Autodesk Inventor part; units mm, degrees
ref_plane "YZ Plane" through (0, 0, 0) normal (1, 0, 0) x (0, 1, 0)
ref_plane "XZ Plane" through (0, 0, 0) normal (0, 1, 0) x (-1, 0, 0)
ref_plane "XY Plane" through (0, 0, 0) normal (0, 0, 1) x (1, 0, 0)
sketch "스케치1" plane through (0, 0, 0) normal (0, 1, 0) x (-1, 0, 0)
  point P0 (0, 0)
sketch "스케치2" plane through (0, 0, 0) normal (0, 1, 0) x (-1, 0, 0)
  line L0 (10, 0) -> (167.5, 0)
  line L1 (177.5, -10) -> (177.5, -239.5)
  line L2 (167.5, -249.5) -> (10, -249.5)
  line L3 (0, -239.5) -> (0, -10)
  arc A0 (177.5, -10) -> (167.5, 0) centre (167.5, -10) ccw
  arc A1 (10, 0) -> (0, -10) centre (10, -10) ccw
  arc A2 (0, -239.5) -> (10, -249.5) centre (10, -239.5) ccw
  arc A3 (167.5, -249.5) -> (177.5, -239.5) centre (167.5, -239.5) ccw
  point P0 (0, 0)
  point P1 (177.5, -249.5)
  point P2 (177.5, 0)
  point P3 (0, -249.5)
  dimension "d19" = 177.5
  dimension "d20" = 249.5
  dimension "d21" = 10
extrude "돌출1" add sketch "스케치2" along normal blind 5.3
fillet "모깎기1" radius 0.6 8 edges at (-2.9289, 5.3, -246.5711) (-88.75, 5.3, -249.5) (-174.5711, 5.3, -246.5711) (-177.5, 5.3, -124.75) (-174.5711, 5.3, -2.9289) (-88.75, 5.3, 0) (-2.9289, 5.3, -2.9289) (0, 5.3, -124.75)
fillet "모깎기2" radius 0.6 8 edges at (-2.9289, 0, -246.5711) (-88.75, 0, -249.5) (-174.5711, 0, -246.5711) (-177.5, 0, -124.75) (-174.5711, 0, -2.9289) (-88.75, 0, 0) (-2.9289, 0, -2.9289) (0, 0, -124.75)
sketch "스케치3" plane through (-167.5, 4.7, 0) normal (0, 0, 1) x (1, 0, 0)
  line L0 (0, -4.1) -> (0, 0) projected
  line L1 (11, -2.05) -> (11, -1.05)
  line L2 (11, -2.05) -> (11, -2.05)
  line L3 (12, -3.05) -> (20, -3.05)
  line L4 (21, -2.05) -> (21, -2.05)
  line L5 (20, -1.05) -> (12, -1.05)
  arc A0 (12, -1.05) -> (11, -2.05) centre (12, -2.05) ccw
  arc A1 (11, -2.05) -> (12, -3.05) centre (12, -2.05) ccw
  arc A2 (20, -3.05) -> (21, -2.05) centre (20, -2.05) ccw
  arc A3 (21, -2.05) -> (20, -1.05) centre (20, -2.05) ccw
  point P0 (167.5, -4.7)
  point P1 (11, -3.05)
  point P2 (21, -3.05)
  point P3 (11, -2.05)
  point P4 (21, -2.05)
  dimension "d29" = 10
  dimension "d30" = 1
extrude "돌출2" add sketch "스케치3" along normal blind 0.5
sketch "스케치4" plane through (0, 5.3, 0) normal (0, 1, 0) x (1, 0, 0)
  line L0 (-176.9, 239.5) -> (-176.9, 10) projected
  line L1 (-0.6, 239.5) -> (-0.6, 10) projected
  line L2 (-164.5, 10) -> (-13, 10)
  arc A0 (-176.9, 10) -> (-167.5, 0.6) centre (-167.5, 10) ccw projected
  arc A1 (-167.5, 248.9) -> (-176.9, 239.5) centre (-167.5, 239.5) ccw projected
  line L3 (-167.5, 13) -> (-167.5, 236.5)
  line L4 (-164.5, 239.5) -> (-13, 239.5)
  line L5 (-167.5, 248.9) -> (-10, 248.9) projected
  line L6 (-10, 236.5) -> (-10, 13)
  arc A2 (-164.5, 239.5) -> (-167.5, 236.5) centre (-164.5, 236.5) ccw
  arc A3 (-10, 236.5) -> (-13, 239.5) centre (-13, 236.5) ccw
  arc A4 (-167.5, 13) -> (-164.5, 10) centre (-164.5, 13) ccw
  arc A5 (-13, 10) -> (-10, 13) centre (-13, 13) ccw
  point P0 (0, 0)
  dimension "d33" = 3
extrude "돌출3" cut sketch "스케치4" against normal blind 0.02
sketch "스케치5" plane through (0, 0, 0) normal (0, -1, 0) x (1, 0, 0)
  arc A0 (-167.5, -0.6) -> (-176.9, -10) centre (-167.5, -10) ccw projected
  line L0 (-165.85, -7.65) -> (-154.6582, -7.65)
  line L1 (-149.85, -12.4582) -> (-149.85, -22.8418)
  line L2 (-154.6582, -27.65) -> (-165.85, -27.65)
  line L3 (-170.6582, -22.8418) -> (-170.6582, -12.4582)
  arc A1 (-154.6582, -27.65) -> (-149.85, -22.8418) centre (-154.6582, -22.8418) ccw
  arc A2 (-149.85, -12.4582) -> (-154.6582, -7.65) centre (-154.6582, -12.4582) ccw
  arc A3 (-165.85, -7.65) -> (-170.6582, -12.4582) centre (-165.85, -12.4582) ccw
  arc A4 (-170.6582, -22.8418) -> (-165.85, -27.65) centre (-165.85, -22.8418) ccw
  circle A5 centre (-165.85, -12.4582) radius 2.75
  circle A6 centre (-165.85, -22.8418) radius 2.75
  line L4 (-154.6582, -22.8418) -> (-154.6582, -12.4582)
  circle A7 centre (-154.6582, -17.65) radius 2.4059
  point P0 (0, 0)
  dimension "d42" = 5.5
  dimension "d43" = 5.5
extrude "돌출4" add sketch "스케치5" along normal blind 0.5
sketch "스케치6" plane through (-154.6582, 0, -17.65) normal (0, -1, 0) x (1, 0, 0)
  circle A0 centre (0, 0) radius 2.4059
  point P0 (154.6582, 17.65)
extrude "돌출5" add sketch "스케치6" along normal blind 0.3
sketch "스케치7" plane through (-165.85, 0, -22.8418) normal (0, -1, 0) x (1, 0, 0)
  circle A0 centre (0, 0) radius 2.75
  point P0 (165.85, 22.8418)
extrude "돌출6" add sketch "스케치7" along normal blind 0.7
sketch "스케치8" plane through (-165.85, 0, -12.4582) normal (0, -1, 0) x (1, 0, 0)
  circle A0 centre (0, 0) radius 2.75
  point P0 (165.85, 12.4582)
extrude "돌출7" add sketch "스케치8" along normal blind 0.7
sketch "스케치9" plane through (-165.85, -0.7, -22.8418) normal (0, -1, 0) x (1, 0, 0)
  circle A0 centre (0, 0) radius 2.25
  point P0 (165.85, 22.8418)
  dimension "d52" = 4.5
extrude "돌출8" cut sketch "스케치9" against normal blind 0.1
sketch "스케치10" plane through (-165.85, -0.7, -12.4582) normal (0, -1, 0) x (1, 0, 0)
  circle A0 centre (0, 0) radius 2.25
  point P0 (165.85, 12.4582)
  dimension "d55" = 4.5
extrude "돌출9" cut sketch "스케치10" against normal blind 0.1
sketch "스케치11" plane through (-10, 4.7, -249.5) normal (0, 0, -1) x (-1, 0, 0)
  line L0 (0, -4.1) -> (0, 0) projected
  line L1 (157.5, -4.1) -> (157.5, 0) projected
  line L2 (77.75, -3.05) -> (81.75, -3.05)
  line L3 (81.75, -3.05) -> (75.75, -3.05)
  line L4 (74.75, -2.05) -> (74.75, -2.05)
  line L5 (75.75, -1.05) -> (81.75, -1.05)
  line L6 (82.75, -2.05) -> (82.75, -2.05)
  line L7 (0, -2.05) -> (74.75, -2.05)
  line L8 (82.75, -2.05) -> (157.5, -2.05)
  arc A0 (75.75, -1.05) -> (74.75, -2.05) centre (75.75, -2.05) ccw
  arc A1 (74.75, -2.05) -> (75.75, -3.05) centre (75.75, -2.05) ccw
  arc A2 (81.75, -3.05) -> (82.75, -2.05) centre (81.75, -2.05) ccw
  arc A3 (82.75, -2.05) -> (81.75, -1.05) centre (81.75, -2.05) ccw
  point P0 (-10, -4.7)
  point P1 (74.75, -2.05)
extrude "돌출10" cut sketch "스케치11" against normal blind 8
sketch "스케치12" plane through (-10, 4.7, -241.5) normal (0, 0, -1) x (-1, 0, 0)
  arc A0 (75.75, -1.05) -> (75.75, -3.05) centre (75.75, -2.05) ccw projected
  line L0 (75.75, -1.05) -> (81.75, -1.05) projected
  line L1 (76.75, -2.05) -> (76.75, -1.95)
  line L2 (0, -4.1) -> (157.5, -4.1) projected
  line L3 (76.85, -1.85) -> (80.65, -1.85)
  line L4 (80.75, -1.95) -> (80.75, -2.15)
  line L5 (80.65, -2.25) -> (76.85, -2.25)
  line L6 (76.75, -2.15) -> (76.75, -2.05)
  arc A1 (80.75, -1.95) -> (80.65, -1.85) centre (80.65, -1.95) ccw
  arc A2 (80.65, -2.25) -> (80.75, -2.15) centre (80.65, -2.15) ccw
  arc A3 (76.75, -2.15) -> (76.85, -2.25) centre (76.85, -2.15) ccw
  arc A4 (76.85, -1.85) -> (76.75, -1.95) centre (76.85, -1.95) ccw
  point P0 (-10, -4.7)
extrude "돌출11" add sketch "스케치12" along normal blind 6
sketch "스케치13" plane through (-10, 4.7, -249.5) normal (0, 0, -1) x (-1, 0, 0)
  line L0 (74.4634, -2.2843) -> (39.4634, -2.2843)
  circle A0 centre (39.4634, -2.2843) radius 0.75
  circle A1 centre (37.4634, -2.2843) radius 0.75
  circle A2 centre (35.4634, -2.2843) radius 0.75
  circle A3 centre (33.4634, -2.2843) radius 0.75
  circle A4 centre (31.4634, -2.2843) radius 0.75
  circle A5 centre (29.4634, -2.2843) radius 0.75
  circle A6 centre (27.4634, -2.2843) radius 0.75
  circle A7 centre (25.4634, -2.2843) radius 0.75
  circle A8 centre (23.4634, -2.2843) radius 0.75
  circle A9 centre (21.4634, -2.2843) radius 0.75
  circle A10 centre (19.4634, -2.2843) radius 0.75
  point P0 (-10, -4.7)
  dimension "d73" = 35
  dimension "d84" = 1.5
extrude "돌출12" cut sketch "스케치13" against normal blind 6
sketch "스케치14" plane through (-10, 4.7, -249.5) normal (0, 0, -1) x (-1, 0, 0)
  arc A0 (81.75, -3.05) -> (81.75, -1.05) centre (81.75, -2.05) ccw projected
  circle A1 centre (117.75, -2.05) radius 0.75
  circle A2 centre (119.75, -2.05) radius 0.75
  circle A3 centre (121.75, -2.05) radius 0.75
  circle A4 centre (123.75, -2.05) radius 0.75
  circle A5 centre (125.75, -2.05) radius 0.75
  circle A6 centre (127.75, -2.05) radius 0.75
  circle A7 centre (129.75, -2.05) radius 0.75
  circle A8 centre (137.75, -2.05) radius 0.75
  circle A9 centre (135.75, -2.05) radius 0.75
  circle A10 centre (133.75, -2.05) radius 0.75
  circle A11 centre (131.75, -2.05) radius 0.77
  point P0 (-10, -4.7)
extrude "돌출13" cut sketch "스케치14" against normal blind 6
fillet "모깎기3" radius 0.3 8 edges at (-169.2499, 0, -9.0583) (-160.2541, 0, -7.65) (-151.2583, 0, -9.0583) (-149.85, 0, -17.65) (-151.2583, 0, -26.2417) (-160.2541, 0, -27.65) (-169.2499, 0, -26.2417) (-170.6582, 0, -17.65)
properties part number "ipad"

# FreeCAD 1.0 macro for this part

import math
import FreeCAD as App
import Part
import Sketcher
from FreeCAD import Vector
Q = App.Units.Quantity


def edges_at(feature, points):
    """Names of the edges that pass closest to the given points."""
    edges = feature.Shape.Edges
    near = lambda p: min(range(len(edges)), key=lambda i: edges[i].distToShape(Part.Vertex(*p))[0])
    return sorted({f"Edge{near(p) + 1}" for p in points})

doc = App.newDocument("Part")
body = doc.addObject("PartDesign::Body", "Body")

sketch1 = body.newObject("Sketcher::SketchObject", "Sketch")
sketch1.AttachmentSupport = (doc.getObject("XZ_Plane"), [""])
sketch1.MapMode = "FlatFace"
sketch1.addGeometry(Part.LineSegment(Vector(-167.5, 0, 0), Vector(-10, 0, 0)), False)
sketch1.addGeometry(Part.ArcOfCircle(Part.Circle(Vector(-10, -10, 0), Vector(0, 0, 1), 10), math.radians(0), math.radians(90)), False)
sketch1.addGeometry(Part.LineSegment(Vector(0, -10, 0), Vector(0, -239.5, 0)), False)
sketch1.addGeometry(Part.ArcOfCircle(Part.Circle(Vector(-10, -239.5, 0), Vector(0, 0, 1), 10), math.radians(-90), math.radians(0)), False)
sketch1.addGeometry(Part.LineSegment(Vector(-10, -249.5, 0), Vector(-167.5, -249.5, 0)), False)
sketch1.addGeometry(Part.ArcOfCircle(Part.Circle(Vector(-167.5, -239.5, 0), Vector(0, 0, 1), 10), math.radians(180), math.radians(270)), False)
sketch1.addGeometry(Part.LineSegment(Vector(-177.5, -239.5, 0), Vector(-177.5, -10, 0)), False)
sketch1.addGeometry(Part.ArcOfCircle(Part.Circle(Vector(-167.5, -10, 0), Vector(0, 0, 1), 10), math.radians(90), math.radians(180)), False)
sketch1.addConstraint(Sketcher.Constraint("Tangent", 0, 2, 1, 2))
sketch1.addConstraint(Sketcher.Constraint("Tangent", 1, 1, 2, 1))
sketch1.addConstraint(Sketcher.Constraint("Tangent", 2, 2, 3, 2))
sketch1.addConstraint(Sketcher.Constraint("Tangent", 3, 1, 4, 1))
sketch1.addConstraint(Sketcher.Constraint("Tangent", 4, 2, 5, 2))
sketch1.addConstraint(Sketcher.Constraint("Tangent", 5, 1, 6, 1))
sketch1.addConstraint(Sketcher.Constraint("Tangent", 6, 2, 7, 2))
sketch1.addConstraint(Sketcher.Constraint("Tangent", 7, 1, 0, 1))
sketch1.addConstraint(Sketcher.Constraint("Horizontal", 0))
sketch1.addConstraint(Sketcher.Constraint("Vertical", 2))
sketch1.addConstraint(Sketcher.Constraint("Horizontal", 4))
sketch1.addConstraint(Sketcher.Constraint("Vertical", 6))
sketch1.addConstraint(Sketcher.Constraint("Equal", 1, 3))
sketch1.addConstraint(Sketcher.Constraint("Equal", 3, 5))
sketch1.addConstraint(Sketcher.Constraint("Equal", 5, 7))
sketch1.addConstraint(Sketcher.Constraint("PointOnObject", 0, 2, -1))
sketch1.addConstraint(Sketcher.Constraint("PointOnObject", 1, 1, -2))
sketch1.addConstraint(Sketcher.Constraint("Radius", 1, Q("10 mm")))
sketch1.addConstraint(Sketcher.Constraint("DistanceY", 3, 1, -1, 1, Q("249.5 mm")))
sketch1.addConstraint(Sketcher.Constraint("DistanceX", 5, 1, -1, 1, Q("177.5 mm")))
pad1 = body.newObject("PartDesign::Pad", "Pad")
pad1.Profile = sketch1
pad1.Length = 5.3
pad1.Reversed = True
doc.recompute()

fillet = body.newObject("PartDesign::Fillet", "Fillet")
fillet.Base = (pad1, edges_at(pad1, [
    (-2.929, 5.3, -246.571),
    (-88.75, 5.3, -249.5),
    (-174.571, 5.3, -246.571),
    (-177.5, 5.3, -124.75),
    (-174.571, 5.3, -2.929),
    (-88.75, 5.3, 0),
    (-2.929, 5.3, -2.929),
    (0, 5.3, -124.75),
]))
fillet.Radius = 0.6
doc.recompute()

fillet2 = body.newObject("PartDesign::Fillet", "Fillet001")
fillet2.Base = (fillet, edges_at(fillet, [
    (-2.929, 0, -246.571),
    (-88.75, 0, -249.5),
    (-174.571, 0, -246.571),
    (-177.5, 0, -124.75),
    (-174.571, 0, -2.929),
    (-88.75, 0, 0),
    (-2.929, 0, -2.929),
    (0, 0, -124.75),
]))
fillet2.Radius = 0.6

sketch2 = body.newObject("Sketcher::SketchObject", "Sketch001")
sketch2.AttachmentSupport = (doc.getObject("XY_Plane"), [""])
sketch2.MapMode = "FlatFace"
sketch2.addGeometry(Part.ArcOfCircle(Part.Circle(Vector(-155.5, 2.65, 0), Vector(0, 0, 1), 1), math.radians(90), math.radians(270)), False)
sketch2.addGeometry(Part.LineSegment(Vector(-155.5, 1.65, 0), Vector(-147.5, 1.65, 0)), False)
sketch2.addGeometry(Part.ArcOfCircle(Part.Circle(Vector(-147.5, 2.65, 0), Vector(0, 0, 1), 1), math.radians(-90), math.radians(90)), False)
sketch2.addGeometry(Part.LineSegment(Vector(-147.5, 3.65, 0), Vector(-155.5, 3.65, 0)), False)
sketch2.addConstraint(Sketcher.Constraint("Tangent", 0, 2, 1, 1))
sketch2.addConstraint(Sketcher.Constraint("Tangent", 1, 2, 2, 1))
sketch2.addConstraint(Sketcher.Constraint("Tangent", 2, 2, 3, 1))
sketch2.addConstraint(Sketcher.Constraint("Tangent", 3, 2, 0, 1))
sketch2.addConstraint(Sketcher.Constraint("Horizontal", 1))
sketch2.addConstraint(Sketcher.Constraint("Horizontal", 3))
sketch2.addConstraint(Sketcher.Constraint("Radius", 0, Q("1 mm")))
sketch2.addConstraint(Sketcher.Constraint("DistanceX", 1, 1, 1, 2, Q("8 mm")))
sketch2.addConstraint(Sketcher.Constraint("DistanceX", 0, 3, -1, 1, Q("155.5 mm")))
sketch2.addConstraint(Sketcher.Constraint("DistanceY", -1, 1, 0, 3, Q("2.65 mm")))
pad2 = body.newObject("PartDesign::Pad", "Pad001")
pad2.Profile = sketch2
pad2.Length = 0.5

sketch3 = body.newObject("Sketcher::SketchObject", "Sketch002")
sketch3.AttachmentSupport = (doc.getObject("XZ_Plane"), [""])
sketch3.MapMode = "FlatFace"
sketch3.AttachmentOffset = App.Placement(Vector(0, 0, -5.3), App.Rotation())
sketch3.addGeometry(Part.ArcOfCircle(Part.Circle(Vector(-164.5, -13, 0), Vector(0, 0, 1), 3), math.radians(90), math.radians(180)), False)
sketch3.addGeometry(Part.LineSegment(Vector(-164.5, -10, 0), Vector(-13, -10, 0)), False)
sketch3.addGeometry(Part.ArcOfCircle(Part.Circle(Vector(-13, -13, 0), Vector(0, 0, 1), 3), math.radians(0), math.radians(90)), False)
sketch3.addGeometry(Part.LineSegment(Vector(-10, -13, 0), Vector(-10, -236.5, 0)), False)
sketch3.addGeometry(Part.ArcOfCircle(Part.Circle(Vector(-13, -236.5, 0), Vector(0, 0, 1), 3), math.radians(-90), math.radians(0)), False)
sketch3.addGeometry(Part.LineSegment(Vector(-13, -239.5, 0), Vector(-164.5, -239.5, 0)), False)
sketch3.addGeometry(Part.ArcOfCircle(Part.Circle(Vector(-164.5, -236.5, 0), Vector(0, 0, 1), 3), math.radians(180), math.radians(270)), False)
sketch3.addGeometry(Part.LineSegment(Vector(-167.5, -236.5, 0), Vector(-167.5, -13, 0)), False)
sketch3.addConstraint(Sketcher.Constraint("Tangent", 0, 1, 1, 1))
sketch3.addConstraint(Sketcher.Constraint("Tangent", 1, 2, 2, 2))
sketch3.addConstraint(Sketcher.Constraint("Tangent", 2, 1, 3, 1))
sketch3.addConstraint(Sketcher.Constraint("Tangent", 3, 2, 4, 2))
sketch3.addConstraint(Sketcher.Constraint("Tangent", 4, 1, 5, 1))
sketch3.addConstraint(Sketcher.Constraint("Tangent", 5, 2, 6, 2))
sketch3.addConstraint(Sketcher.Constraint("Tangent", 6, 1, 7, 1))
sketch3.addConstraint(Sketcher.Constraint("Tangent", 7, 2, 0, 2))
sketch3.addConstraint(Sketcher.Constraint("Horizontal", 1))
sketch3.addConstraint(Sketcher.Constraint("Vertical", 3))
sketch3.addConstraint(Sketcher.Constraint("Horizontal", 5))
sketch3.addConstraint(Sketcher.Constraint("Vertical", 7))
sketch3.addConstraint(Sketcher.Constraint("Equal", 0, 2))
sketch3.addConstraint(Sketcher.Constraint("Equal", 2, 4))
sketch3.addConstraint(Sketcher.Constraint("Equal", 4, 6))
sketch3.addConstraint(Sketcher.Constraint("Radius", 0, Q("3 mm")))
sketch3.addConstraint(Sketcher.Constraint("DistanceX", 1, 1, 1, 2, Q("151.5 mm")))
sketch3.addConstraint(Sketcher.Constraint("DistanceY", 3, 2, 3, 1, Q("223.5 mm")))
sketch3.addConstraint(Sketcher.Constraint("DistanceY", 0, 3, -1, 1, Q("13 mm")))
sketch3.addConstraint(Sketcher.Constraint("DistanceX", 2, 3, -1, 1, Q("13 mm")))
pocket1 = body.newObject("PartDesign::Pocket", "Pocket")
pocket1.Profile = sketch3
pocket1.Length = 0.02
pocket1.Reversed = True

sketch4 = body.newObject("Sketcher::SketchObject", "Sketch003")
sketch4.AttachmentSupport = (doc.getObject("XZ_Plane"), [""])
sketch4.MapMode = "FlatFace"
sketch4.addGeometry(Part.LineSegment(Vector(-154.6582, -7.65, 0), Vector(-165.85, -7.65, 0)), False)
sketch4.addGeometry(Part.ArcOfCircle(Part.Circle(Vector(-165.85, -12.4582, 0), Vector(0, 0, 1), 4.8082), math.radians(90), math.radians(180)), False)
sketch4.addGeometry(Part.LineSegment(Vector(-170.6582, -12.4582, 0), Vector(-170.6582, -22.8418, 0)), False)
sketch4.addGeometry(Part.ArcOfCircle(Part.Circle(Vector(-165.85, -22.8418, 0), Vector(0, 0, 1), 4.8082), math.radians(180), math.radians(270)), False)
sketch4.addGeometry(Part.LineSegment(Vector(-165.85, -27.65, 0), Vector(-154.6582, -27.65, 0)), False)
sketch4.addGeometry(Part.ArcOfCircle(Part.Circle(Vector(-154.6582, -22.8418, 0), Vector(0, 0, 1), 4.8082), math.radians(-90), math.radians(0)), False)
sketch4.addGeometry(Part.LineSegment(Vector(-149.85, -22.8418, 0), Vector(-149.85, -12.4582, 0)), False)
sketch4.addGeometry(Part.ArcOfCircle(Part.Circle(Vector(-154.6582, -12.4582, 0), Vector(0, 0, 1), 4.8082), math.radians(0), math.radians(90)), False)
sketch4.addGeometry(Part.Circle(Vector(-165.85, -22.8418, 0), Vector(0, 0, 1), 2.75), False)
sketch4.addGeometry(Part.Circle(Vector(-154.6582, -17.65, 0), Vector(0, 0, 1), 2.4059), False)
sketch4.addGeometry(Part.Circle(Vector(-165.85, -12.4582, 0), Vector(0, 0, 1), 2.75), False)
sketch4.addConstraint(Sketcher.Constraint("Tangent", 0, 2, 1, 1))
sketch4.addConstraint(Sketcher.Constraint("Tangent", 1, 2, 2, 1))
sketch4.addConstraint(Sketcher.Constraint("Tangent", 2, 2, 3, 1))
sketch4.addConstraint(Sketcher.Constraint("Tangent", 3, 2, 4, 1))
sketch4.addConstraint(Sketcher.Constraint("Tangent", 4, 2, 5, 1))
sketch4.addConstraint(Sketcher.Constraint("Tangent", 5, 2, 6, 1))
sketch4.addConstraint(Sketcher.Constraint("Tangent", 6, 2, 7, 1))
sketch4.addConstraint(Sketcher.Constraint("Tangent", 7, 2, 0, 1))
sketch4.addConstraint(Sketcher.Constraint("Horizontal", 0))
sketch4.addConstraint(Sketcher.Constraint("Vertical", 2))
sketch4.addConstraint(Sketcher.Constraint("Horizontal", 4))
sketch4.addConstraint(Sketcher.Constraint("Vertical", 6))
sketch4.addConstraint(Sketcher.Constraint("Coincident", 8, 3, 3, 3))
sketch4.addConstraint(Sketcher.Constraint("Coincident", 10, 3, 1, 3))
sketch4.addConstraint(Sketcher.Constraint("Equal", 1, 3))
sketch4.addConstraint(Sketcher.Constraint("Equal", 3, 5))
sketch4.addConstraint(Sketcher.Constraint("Equal", 5, 7))
sketch4.addConstraint(Sketcher.Constraint("Equal", 8, 10))
sketch4.addConstraint(Sketcher.Constraint("Vertical", 7, 3, 9, 3))
sketch4.addConstraint(Sketcher.Constraint("Diameter", 8, Q("5.5 mm")))
sketch4.addConstraint(Sketcher.Constraint("DistanceY", 9, 3, 0, 2, Q("10 mm")))
sketch4.addConstraint(Sketcher.Constraint("DistanceY", 3, 2, 9, 3, Q("10 mm")))
sketch4.addConstraint(Sketcher.Constraint("DistanceX", 3, 3, 5, 2, Q("16 mm")))
sketch4.addConstraint(Sketcher.Constraint("Diameter", 9, Q("4.8118 mm")))
sketch4.addConstraint(Sketcher.Constraint("Radius", 1, Q("4.8082 mm")))
sketch4.addConstraint(Sketcher.Constraint("DistanceX", 1, 3, -1, 1, Q("165.85 mm")))
sketch4.addConstraint(Sketcher.Constraint("DistanceY", 9, 3, -1, 1, Q("17.65 mm")))
pad3 = body.newObject("PartDesign::Pad", "Pad002")
pad3.Profile = sketch4
pad3.Length = 0.5

sketch5 = body.newObject("Sketcher::SketchObject", "Sketch004")
sketch5.AttachmentSupport = (doc.getObject("XZ_Plane"), [""])
sketch5.MapMode = "FlatFace"
sketch5.addGeometry(Part.Circle(Vector(-154.6582, -17.65, 0), Vector(0, 0, 1), 2.4059), False)
sketch5.addConstraint(Sketcher.Constraint("Diameter", 0, Q("4.8118 mm")))
sketch5.addConstraint(Sketcher.Constraint("DistanceY", 0, 3, -1, 1, Q("17.65 mm")))
sketch5.addConstraint(Sketcher.Constraint("DistanceX", 0, 3, -1, 1, Q("154.6582 mm")))
pad4 = body.newObject("PartDesign::Pad", "Pad003")
pad4.Profile = sketch5
pad4.Length = 0.3

sketch6 = body.newObject("Sketcher::SketchObject", "Sketch005")
sketch6.AttachmentSupport = (doc.getObject("XZ_Plane"), [""])
sketch6.MapMode = "FlatFace"
sketch6.addGeometry(Part.Circle(Vector(-165.85, -22.8418, 0), Vector(0, 0, 1), 2.75), False)
sketch6.addConstraint(Sketcher.Constraint("Diameter", 0, Q("5.5 mm")))
sketch6.addConstraint(Sketcher.Constraint("DistanceX", 0, 3, -1, 1, Q("165.85 mm")))
sketch6.addConstraint(Sketcher.Constraint("DistanceY", 0, 3, -1, 1, Q("22.8418 mm")))
pad5 = body.newObject("PartDesign::Pad", "Pad004")
pad5.Profile = sketch6
pad5.Length = 0.7

sketch7 = body.newObject("Sketcher::SketchObject", "Sketch006")
sketch7.AttachmentSupport = (doc.getObject("XZ_Plane"), [""])
sketch7.MapMode = "FlatFace"
sketch7.addGeometry(Part.Circle(Vector(-165.85, -12.4582, 0), Vector(0, 0, 1), 2.75), False)
sketch7.addConstraint(Sketcher.Constraint("Diameter", 0, Q("5.5 mm")))
sketch7.addConstraint(Sketcher.Constraint("DistanceX", 0, 3, -1, 1, Q("165.85 mm")))
sketch7.addConstraint(Sketcher.Constraint("DistanceY", 0, 3, -1, 1, Q("12.4582 mm")))
pad6 = body.newObject("PartDesign::Pad", "Pad005")
pad6.Profile = sketch7
pad6.Length = 0.7

sketch8 = body.newObject("Sketcher::SketchObject", "Sketch007")
sketch8.AttachmentSupport = (doc.getObject("XZ_Plane"), [""])
sketch8.MapMode = "FlatFace"
sketch8.AttachmentOffset = App.Placement(Vector(0, 0, 0.7), App.Rotation())
sketch8.addGeometry(Part.Circle(Vector(-165.85, -22.8418, 0), Vector(0, 0, 1), 2.25), False)
sketch8.addConstraint(Sketcher.Constraint("Diameter", 0, Q("4.5 mm")))
sketch8.addConstraint(Sketcher.Constraint("DistanceX", 0, 3, -1, 1, Q("165.85 mm")))
sketch8.addConstraint(Sketcher.Constraint("DistanceY", 0, 3, -1, 1, Q("22.8418 mm")))
pocket2 = body.newObject("PartDesign::Pocket", "Pocket001")
pocket2.Profile = sketch8
pocket2.Length = 0.1

sketch9 = body.newObject("Sketcher::SketchObject", "Sketch008")
sketch9.AttachmentSupport = (doc.getObject("XZ_Plane"), [""])
sketch9.MapMode = "FlatFace"
sketch9.AttachmentOffset = App.Placement(Vector(0, 0, 0.7), App.Rotation())
sketch9.addGeometry(Part.Circle(Vector(-165.85, -12.4582, 0), Vector(0, 0, 1), 2.25), False)
sketch9.addConstraint(Sketcher.Constraint("Diameter", 0, Q("4.5 mm")))
sketch9.addConstraint(Sketcher.Constraint("DistanceX", 0, 3, -1, 1, Q("165.85 mm")))
sketch9.addConstraint(Sketcher.Constraint("DistanceY", 0, 3, -1, 1, Q("12.4582 mm")))
pocket3 = body.newObject("PartDesign::Pocket", "Pocket002")
pocket3.Profile = sketch9
pocket3.Length = 0.1

sketch10 = body.newObject("Sketcher::SketchObject", "Sketch009")
sketch10.AttachmentSupport = (doc.getObject("XY_Plane"), [""])
sketch10.MapMode = "FlatFace"
sketch10.AttachmentOffset = App.Placement(Vector(0, 0, -249.5), App.Rotation())
sketch10.addGeometry(Part.LineSegment(Vector(-85.75, 1.65, 0), Vector(-91.75, 1.65, 0)), False)
sketch10.addGeometry(Part.ArcOfCircle(Part.Circle(Vector(-91.75, 2.65, 0), Vector(0, 0, 1), 1), math.radians(90), math.radians(270)), False)
sketch10.addGeometry(Part.LineSegment(Vector(-91.75, 3.65, 0), Vector(-85.75, 3.65, 0)), False)
sketch10.addGeometry(Part.ArcOfCircle(Part.Circle(Vector(-85.75, 2.65, 0), Vector(0, 0, 1), 1), math.radians(-90), math.radians(90)), False)
sketch10.addConstraint(Sketcher.Constraint("Tangent", 0, 2, 1, 2))
sketch10.addConstraint(Sketcher.Constraint("Tangent", 1, 1, 2, 1))
sketch10.addConstraint(Sketcher.Constraint("Tangent", 2, 2, 3, 2))
sketch10.addConstraint(Sketcher.Constraint("Tangent", 3, 1, 0, 1))
sketch10.addConstraint(Sketcher.Constraint("Horizontal", 0))
sketch10.addConstraint(Sketcher.Constraint("Horizontal", 2))
sketch10.addConstraint(Sketcher.Constraint("Radius", 1, Q("1 mm")))
sketch10.addConstraint(Sketcher.Constraint("DistanceX", 0, 2, 0, 1, Q("6 mm")))
sketch10.addConstraint(Sketcher.Constraint("DistanceX", 1, 3, -1, 1, Q("91.75 mm")))
sketch10.addConstraint(Sketcher.Constraint("DistanceY", -1, 1, 1, 3, Q("2.65 mm")))
pocket4 = body.newObject("PartDesign::Pocket", "Pocket003")
pocket4.Profile = sketch10
pocket4.Length = 8
pocket4.Reversed = True

sketch11 = body.newObject("Sketcher::SketchObject", "Sketch010")
sketch11.AttachmentSupport = (doc.getObject("XY_Plane"), [""])
sketch11.MapMode = "FlatFace"
sketch11.AttachmentOffset = App.Placement(Vector(0, 0, -241.5), App.Rotation())
sketch11.addGeometry(Part.LineSegment(Vector(-86.75, 2.75, 0), Vector(-86.75, 2.55, 0)), False)
sketch11.addGeometry(Part.ArcOfCircle(Part.Circle(Vector(-86.85, 2.55, 0), Vector(0, 0, 1), 0.1), math.radians(-90), math.radians(0)), False)
sketch11.addGeometry(Part.LineSegment(Vector(-86.85, 2.45, 0), Vector(-90.65, 2.45, 0)), False)
sketch11.addGeometry(Part.ArcOfCircle(Part.Circle(Vector(-90.65, 2.55, 0), Vector(0, 0, 1), 0.1), math.radians(180), math.radians(270)), False)
sketch11.addGeometry(Part.LineSegment(Vector(-90.75, 2.55, 0), Vector(-90.75, 2.75, 0)), False)
sketch11.addGeometry(Part.ArcOfCircle(Part.Circle(Vector(-90.65, 2.75, 0), Vector(0, 0, 1), 0.1), math.radians(90), math.radians(180)), False)
sketch11.addGeometry(Part.LineSegment(Vector(-90.65, 2.85, 0), Vector(-86.85, 2.85, 0)), False)
sketch11.addGeometry(Part.ArcOfCircle(Part.Circle(Vector(-86.85, 2.75, 0), Vector(0, 0, 1), 0.1), math.radians(0), math.radians(90)), False)
sketch11.addConstraint(Sketcher.Constraint("Tangent", 0, 2, 1, 2))
sketch11.addConstraint(Sketcher.Constraint("Tangent", 1, 1, 2, 1))
sketch11.addConstraint(Sketcher.Constraint("Tangent", 2, 2, 3, 2))
sketch11.addConstraint(Sketcher.Constraint("Tangent", 3, 1, 4, 1))
sketch11.addConstraint(Sketcher.Constraint("Tangent", 4, 2, 5, 2))
sketch11.addConstraint(Sketcher.Constraint("Tangent", 5, 1, 6, 1))
sketch11.addConstraint(Sketcher.Constraint("Tangent", 6, 2, 7, 2))
sketch11.addConstraint(Sketcher.Constraint("Tangent", 7, 1, 0, 1))
sketch11.addConstraint(Sketcher.Constraint("Vertical", 0))
sketch11.addConstraint(Sketcher.Constraint("Horizontal", 2))
sketch11.addConstraint(Sketcher.Constraint("Vertical", 4))
sketch11.addConstraint(Sketcher.Constraint("Horizontal", 6))
sketch11.addConstraint(Sketcher.Constraint("Equal", 1, 3))
sketch11.addConstraint(Sketcher.Constraint("Equal", 3, 5))
sketch11.addConstraint(Sketcher.Constraint("Equal", 5, 7))
sketch11.addConstraint(Sketcher.Constraint("Radius", 1, Q("0.1 mm")))
sketch11.addConstraint(Sketcher.Constraint("DistanceX", 2, 2, 2, 1, Q("3.8 mm")))
sketch11.addConstraint(Sketcher.Constraint("DistanceY", 0, 2, 0, 1, Q("0.2 mm")))
sketch11.addConstraint(Sketcher.Constraint("DistanceX", 1, 3, -1, 1, Q("86.85 mm")))
sketch11.addConstraint(Sketcher.Constraint("DistanceY", -1, 1, 1, 3, Q("2.55 mm")))
pad7 = body.newObject("PartDesign::Pad", "Pad006")
pad7.Profile = sketch11
pad7.Length = 6
pad7.Reversed = True

sketch12 = body.newObject("Sketcher::SketchObject", "Sketch011")
sketch12.AttachmentSupport = (doc.getObject("XY_Plane"), [""])
sketch12.MapMode = "FlatFace"
sketch12.AttachmentOffset = App.Placement(Vector(0, 0, -249.5), App.Rotation())
sketch12.addGeometry(Part.Circle(Vector(-49.4634, 2.4157, 0), Vector(0, 0, 1), 0.75), False)
sketch12.addGeometry(Part.Circle(Vector(-47.4634, 2.4157, 0), Vector(0, 0, 1), 0.75), False)
sketch12.addGeometry(Part.Circle(Vector(-45.4634, 2.4157, 0), Vector(0, 0, 1), 0.75), False)
sketch12.addGeometry(Part.Circle(Vector(-43.4634, 2.4157, 0), Vector(0, 0, 1), 0.75), False)
sketch12.addGeometry(Part.Circle(Vector(-41.4634, 2.4157, 0), Vector(0, 0, 1), 0.75), False)
sketch12.addGeometry(Part.Circle(Vector(-39.4634, 2.4157, 0), Vector(0, 0, 1), 0.75), False)
sketch12.addGeometry(Part.Circle(Vector(-37.4634, 2.4157, 0), Vector(0, 0, 1), 0.75), False)
sketch12.addGeometry(Part.Circle(Vector(-35.4634, 2.4157, 0), Vector(0, 0, 1), 0.75), False)
sketch12.addGeometry(Part.Circle(Vector(-33.4634, 2.4157, 0), Vector(0, 0, 1), 0.75), False)
sketch12.addGeometry(Part.Circle(Vector(-31.4634, 2.4157, 0), Vector(0, 0, 1), 0.75), False)
sketch12.addGeometry(Part.Circle(Vector(-29.4634, 2.4157, 0), Vector(0, 0, 1), 0.75), False)
sketch12.addConstraint(Sketcher.Constraint("Equal", 0, 1))
sketch12.addConstraint(Sketcher.Constraint("Equal", 1, 2))
sketch12.addConstraint(Sketcher.Constraint("Equal", 2, 3))
sketch12.addConstraint(Sketcher.Constraint("Equal", 3, 4))
sketch12.addConstraint(Sketcher.Constraint("Equal", 4, 5))
sketch12.addConstraint(Sketcher.Constraint("Equal", 5, 6))
sketch12.addConstraint(Sketcher.Constraint("Equal", 6, 7))
sketch12.addConstraint(Sketcher.Constraint("Equal", 7, 8))
sketch12.addConstraint(Sketcher.Constraint("Equal", 8, 9))
sketch12.addConstraint(Sketcher.Constraint("Equal", 9, 10))
sketch12.addConstraint(Sketcher.Constraint("Horizontal", 0, 3, 1, 3))
sketch12.addConstraint(Sketcher.Constraint("Horizontal", 1, 3, 2, 3))
sketch12.addConstraint(Sketcher.Constraint("Horizontal", 2, 3, 3, 3))
sketch12.addConstraint(Sketcher.Constraint("Horizontal", 3, 3, 4, 3))
sketch12.addConstraint(Sketcher.Constraint("Horizontal", 4, 3, 5, 3))
sketch12.addConstraint(Sketcher.Constraint("Horizontal", 5, 3, 6, 3))
sketch12.addConstraint(Sketcher.Constraint("Horizontal", 6, 3, 7, 3))
sketch12.addConstraint(Sketcher.Constraint("Horizontal", 7, 3, 8, 3))
sketch12.addConstraint(Sketcher.Constraint("Horizontal", 8, 3, 9, 3))
sketch12.addConstraint(Sketcher.Constraint("Horizontal", 9, 3, 10, 3))
sketch12.addConstraint(Sketcher.Constraint("Diameter", 0, Q("1.5 mm")))
sketch12.addConstraint(Sketcher.Constraint("DistanceX", 0, 3, 1, 3, Q("2 mm")))
sketch12.addConstraint(Sketcher.Constraint("DistanceX", 1, 3, 2, 3, Q("2 mm")))
sketch12.addConstraint(Sketcher.Constraint("DistanceX", 2, 3, 3, 3, Q("2 mm")))
sketch12.addConstraint(Sketcher.Constraint("DistanceX", 3, 3, 4, 3, Q("2 mm")))
sketch12.addConstraint(Sketcher.Constraint("DistanceX", 4, 3, 5, 3, Q("2 mm")))
sketch12.addConstraint(Sketcher.Constraint("DistanceX", 5, 3, 6, 3, Q("2 mm")))
sketch12.addConstraint(Sketcher.Constraint("DistanceX", 6, 3, 7, 3, Q("2 mm")))
sketch12.addConstraint(Sketcher.Constraint("DistanceX", 7, 3, 8, 3, Q("2 mm")))
sketch12.addConstraint(Sketcher.Constraint("DistanceX", 8, 3, 9, 3, Q("2 mm")))
sketch12.addConstraint(Sketcher.Constraint("DistanceX", 9, 3, 10, 3, Q("2 mm")))
sketch12.addConstraint(Sketcher.Constraint("DistanceX", 0, 3, -1, 1, Q("49.4634 mm")))
sketch12.addConstraint(Sketcher.Constraint("DistanceY", -1, 1, 0, 3, Q("2.4157 mm")))
pocket5 = body.newObject("PartDesign::Pocket", "Pocket004")
pocket5.Profile = sketch12
pocket5.Length = 6
pocket5.Reversed = True

sketch13 = body.newObject("Sketcher::SketchObject", "Sketch012")
sketch13.AttachmentSupport = (doc.getObject("XY_Plane"), [""])
sketch13.MapMode = "FlatFace"
sketch13.AttachmentOffset = App.Placement(Vector(0, 0, -249.5), App.Rotation())
sketch13.addGeometry(Part.Circle(Vector(-127.75, 2.65, 0), Vector(0, 0, 1), 0.75), False)
sketch13.addGeometry(Part.Circle(Vector(-129.75, 2.65, 0), Vector(0, 0, 1), 0.75), False)
sketch13.addGeometry(Part.Circle(Vector(-131.75, 2.65, 0), Vector(0, 0, 1), 0.75), False)
sketch13.addGeometry(Part.Circle(Vector(-133.75, 2.65, 0), Vector(0, 0, 1), 0.75), False)
sketch13.addGeometry(Part.Circle(Vector(-135.75, 2.65, 0), Vector(0, 0, 1), 0.75), False)
sketch13.addGeometry(Part.Circle(Vector(-137.75, 2.65, 0), Vector(0, 0, 1), 0.75), False)
sketch13.addGeometry(Part.Circle(Vector(-139.75, 2.65, 0), Vector(0, 0, 1), 0.75), False)
sketch13.addGeometry(Part.Circle(Vector(-147.75, 2.65, 0), Vector(0, 0, 1), 0.75), False)
sketch13.addGeometry(Part.Circle(Vector(-145.75, 2.65, 0), Vector(0, 0, 1), 0.75), False)
sketch13.addGeometry(Part.Circle(Vector(-143.75, 2.65, 0), Vector(0, 0, 1), 0.75), False)
sketch13.addGeometry(Part.Circle(Vector(-141.75, 2.65, 0), Vector(0, 0, 1), 0.77), False)
sketch13.addConstraint(Sketcher.Constraint("Equal", 0, 1))
sketch13.addConstraint(Sketcher.Constraint("Equal", 1, 2))
sketch13.addConstraint(Sketcher.Constraint("Equal", 2, 3))
sketch13.addConstraint(Sketcher.Constraint("Equal", 3, 4))
sketch13.addConstraint(Sketcher.Constraint("Equal", 4, 5))
sketch13.addConstraint(Sketcher.Constraint("Equal", 5, 6))
sketch13.addConstraint(Sketcher.Constraint("Equal", 6, 7))
sketch13.addConstraint(Sketcher.Constraint("Equal", 7, 8))
sketch13.addConstraint(Sketcher.Constraint("Equal", 8, 9))
sketch13.addConstraint(Sketcher.Constraint("Horizontal", 0, 3, 1, 3))
sketch13.addConstraint(Sketcher.Constraint("Horizontal", 1, 3, 2, 3))
sketch13.addConstraint(Sketcher.Constraint("Horizontal", 2, 3, 3, 3))
sketch13.addConstraint(Sketcher.Constraint("Horizontal", 3, 3, 4, 3))
sketch13.addConstraint(Sketcher.Constraint("Horizontal", 4, 3, 5, 3))
sketch13.addConstraint(Sketcher.Constraint("Horizontal", 5, 3, 6, 3))
sketch13.addConstraint(Sketcher.Constraint("Horizontal", 6, 3, 7, 3))
sketch13.addConstraint(Sketcher.Constraint("Horizontal", 7, 3, 8, 3))
sketch13.addConstraint(Sketcher.Constraint("Horizontal", 8, 3, 9, 3))
sketch13.addConstraint(Sketcher.Constraint("Horizontal", 9, 3, 10, 3))
sketch13.addConstraint(Sketcher.Constraint("Diameter", 0, Q("1.5 mm")))
sketch13.addConstraint(Sketcher.Constraint("Diameter", 10, Q("1.54 mm")))
sketch13.addConstraint(Sketcher.Constraint("DistanceX", 1, 3, 0, 3, Q("2 mm")))
sketch13.addConstraint(Sketcher.Constraint("DistanceX", 2, 3, 1, 3, Q("2 mm")))
sketch13.addConstraint(Sketcher.Constraint("DistanceX", 3, 3, 2, 3, Q("2 mm")))
sketch13.addConstraint(Sketcher.Constraint("DistanceX", 4, 3, 3, 3, Q("2 mm")))
sketch13.addConstraint(Sketcher.Constraint("DistanceX", 5, 3, 4, 3, Q("2 mm")))
sketch13.addConstraint(Sketcher.Constraint("DistanceX", 6, 3, 5, 3, Q("2 mm")))
sketch13.addConstraint(Sketcher.Constraint("DistanceX", 7, 3, 6, 3, Q("8 mm")))
sketch13.addConstraint(Sketcher.Constraint("DistanceX", 7, 3, 8, 3, Q("2 mm")))
sketch13.addConstraint(Sketcher.Constraint("DistanceX", 8, 3, 9, 3, Q("2 mm")))
sketch13.addConstraint(Sketcher.Constraint("DistanceX", 10, 3, 6, 3, Q("2 mm")))
sketch13.addConstraint(Sketcher.Constraint("DistanceX", 0, 3, -1, 1, Q("127.75 mm")))
sketch13.addConstraint(Sketcher.Constraint("DistanceY", -1, 1, 0, 3, Q("2.65 mm")))
pocket6 = body.newObject("PartDesign::Pocket", "Pocket005")
pocket6.Profile = sketch13
pocket6.Length = 6
pocket6.Reversed = True
doc.recompute()

fillet3 = body.newObject("PartDesign::Fillet", "Fillet002")
fillet3.Base = (pocket6, edges_at(pocket6, [
    (-169.25, 0, -9.058),
    (-160.254, 0, -7.65),
    (-151.258, 0, -9.058),
    (-149.85, 0, -17.65),
    (-151.258, 0, -26.242),
    (-160.254, 0, -27.65),
    (-169.25, 0, -26.242),
    (-170.658, 0, -17.65),
]))
fillet3.Radius = 0.3

doc.recompute()
